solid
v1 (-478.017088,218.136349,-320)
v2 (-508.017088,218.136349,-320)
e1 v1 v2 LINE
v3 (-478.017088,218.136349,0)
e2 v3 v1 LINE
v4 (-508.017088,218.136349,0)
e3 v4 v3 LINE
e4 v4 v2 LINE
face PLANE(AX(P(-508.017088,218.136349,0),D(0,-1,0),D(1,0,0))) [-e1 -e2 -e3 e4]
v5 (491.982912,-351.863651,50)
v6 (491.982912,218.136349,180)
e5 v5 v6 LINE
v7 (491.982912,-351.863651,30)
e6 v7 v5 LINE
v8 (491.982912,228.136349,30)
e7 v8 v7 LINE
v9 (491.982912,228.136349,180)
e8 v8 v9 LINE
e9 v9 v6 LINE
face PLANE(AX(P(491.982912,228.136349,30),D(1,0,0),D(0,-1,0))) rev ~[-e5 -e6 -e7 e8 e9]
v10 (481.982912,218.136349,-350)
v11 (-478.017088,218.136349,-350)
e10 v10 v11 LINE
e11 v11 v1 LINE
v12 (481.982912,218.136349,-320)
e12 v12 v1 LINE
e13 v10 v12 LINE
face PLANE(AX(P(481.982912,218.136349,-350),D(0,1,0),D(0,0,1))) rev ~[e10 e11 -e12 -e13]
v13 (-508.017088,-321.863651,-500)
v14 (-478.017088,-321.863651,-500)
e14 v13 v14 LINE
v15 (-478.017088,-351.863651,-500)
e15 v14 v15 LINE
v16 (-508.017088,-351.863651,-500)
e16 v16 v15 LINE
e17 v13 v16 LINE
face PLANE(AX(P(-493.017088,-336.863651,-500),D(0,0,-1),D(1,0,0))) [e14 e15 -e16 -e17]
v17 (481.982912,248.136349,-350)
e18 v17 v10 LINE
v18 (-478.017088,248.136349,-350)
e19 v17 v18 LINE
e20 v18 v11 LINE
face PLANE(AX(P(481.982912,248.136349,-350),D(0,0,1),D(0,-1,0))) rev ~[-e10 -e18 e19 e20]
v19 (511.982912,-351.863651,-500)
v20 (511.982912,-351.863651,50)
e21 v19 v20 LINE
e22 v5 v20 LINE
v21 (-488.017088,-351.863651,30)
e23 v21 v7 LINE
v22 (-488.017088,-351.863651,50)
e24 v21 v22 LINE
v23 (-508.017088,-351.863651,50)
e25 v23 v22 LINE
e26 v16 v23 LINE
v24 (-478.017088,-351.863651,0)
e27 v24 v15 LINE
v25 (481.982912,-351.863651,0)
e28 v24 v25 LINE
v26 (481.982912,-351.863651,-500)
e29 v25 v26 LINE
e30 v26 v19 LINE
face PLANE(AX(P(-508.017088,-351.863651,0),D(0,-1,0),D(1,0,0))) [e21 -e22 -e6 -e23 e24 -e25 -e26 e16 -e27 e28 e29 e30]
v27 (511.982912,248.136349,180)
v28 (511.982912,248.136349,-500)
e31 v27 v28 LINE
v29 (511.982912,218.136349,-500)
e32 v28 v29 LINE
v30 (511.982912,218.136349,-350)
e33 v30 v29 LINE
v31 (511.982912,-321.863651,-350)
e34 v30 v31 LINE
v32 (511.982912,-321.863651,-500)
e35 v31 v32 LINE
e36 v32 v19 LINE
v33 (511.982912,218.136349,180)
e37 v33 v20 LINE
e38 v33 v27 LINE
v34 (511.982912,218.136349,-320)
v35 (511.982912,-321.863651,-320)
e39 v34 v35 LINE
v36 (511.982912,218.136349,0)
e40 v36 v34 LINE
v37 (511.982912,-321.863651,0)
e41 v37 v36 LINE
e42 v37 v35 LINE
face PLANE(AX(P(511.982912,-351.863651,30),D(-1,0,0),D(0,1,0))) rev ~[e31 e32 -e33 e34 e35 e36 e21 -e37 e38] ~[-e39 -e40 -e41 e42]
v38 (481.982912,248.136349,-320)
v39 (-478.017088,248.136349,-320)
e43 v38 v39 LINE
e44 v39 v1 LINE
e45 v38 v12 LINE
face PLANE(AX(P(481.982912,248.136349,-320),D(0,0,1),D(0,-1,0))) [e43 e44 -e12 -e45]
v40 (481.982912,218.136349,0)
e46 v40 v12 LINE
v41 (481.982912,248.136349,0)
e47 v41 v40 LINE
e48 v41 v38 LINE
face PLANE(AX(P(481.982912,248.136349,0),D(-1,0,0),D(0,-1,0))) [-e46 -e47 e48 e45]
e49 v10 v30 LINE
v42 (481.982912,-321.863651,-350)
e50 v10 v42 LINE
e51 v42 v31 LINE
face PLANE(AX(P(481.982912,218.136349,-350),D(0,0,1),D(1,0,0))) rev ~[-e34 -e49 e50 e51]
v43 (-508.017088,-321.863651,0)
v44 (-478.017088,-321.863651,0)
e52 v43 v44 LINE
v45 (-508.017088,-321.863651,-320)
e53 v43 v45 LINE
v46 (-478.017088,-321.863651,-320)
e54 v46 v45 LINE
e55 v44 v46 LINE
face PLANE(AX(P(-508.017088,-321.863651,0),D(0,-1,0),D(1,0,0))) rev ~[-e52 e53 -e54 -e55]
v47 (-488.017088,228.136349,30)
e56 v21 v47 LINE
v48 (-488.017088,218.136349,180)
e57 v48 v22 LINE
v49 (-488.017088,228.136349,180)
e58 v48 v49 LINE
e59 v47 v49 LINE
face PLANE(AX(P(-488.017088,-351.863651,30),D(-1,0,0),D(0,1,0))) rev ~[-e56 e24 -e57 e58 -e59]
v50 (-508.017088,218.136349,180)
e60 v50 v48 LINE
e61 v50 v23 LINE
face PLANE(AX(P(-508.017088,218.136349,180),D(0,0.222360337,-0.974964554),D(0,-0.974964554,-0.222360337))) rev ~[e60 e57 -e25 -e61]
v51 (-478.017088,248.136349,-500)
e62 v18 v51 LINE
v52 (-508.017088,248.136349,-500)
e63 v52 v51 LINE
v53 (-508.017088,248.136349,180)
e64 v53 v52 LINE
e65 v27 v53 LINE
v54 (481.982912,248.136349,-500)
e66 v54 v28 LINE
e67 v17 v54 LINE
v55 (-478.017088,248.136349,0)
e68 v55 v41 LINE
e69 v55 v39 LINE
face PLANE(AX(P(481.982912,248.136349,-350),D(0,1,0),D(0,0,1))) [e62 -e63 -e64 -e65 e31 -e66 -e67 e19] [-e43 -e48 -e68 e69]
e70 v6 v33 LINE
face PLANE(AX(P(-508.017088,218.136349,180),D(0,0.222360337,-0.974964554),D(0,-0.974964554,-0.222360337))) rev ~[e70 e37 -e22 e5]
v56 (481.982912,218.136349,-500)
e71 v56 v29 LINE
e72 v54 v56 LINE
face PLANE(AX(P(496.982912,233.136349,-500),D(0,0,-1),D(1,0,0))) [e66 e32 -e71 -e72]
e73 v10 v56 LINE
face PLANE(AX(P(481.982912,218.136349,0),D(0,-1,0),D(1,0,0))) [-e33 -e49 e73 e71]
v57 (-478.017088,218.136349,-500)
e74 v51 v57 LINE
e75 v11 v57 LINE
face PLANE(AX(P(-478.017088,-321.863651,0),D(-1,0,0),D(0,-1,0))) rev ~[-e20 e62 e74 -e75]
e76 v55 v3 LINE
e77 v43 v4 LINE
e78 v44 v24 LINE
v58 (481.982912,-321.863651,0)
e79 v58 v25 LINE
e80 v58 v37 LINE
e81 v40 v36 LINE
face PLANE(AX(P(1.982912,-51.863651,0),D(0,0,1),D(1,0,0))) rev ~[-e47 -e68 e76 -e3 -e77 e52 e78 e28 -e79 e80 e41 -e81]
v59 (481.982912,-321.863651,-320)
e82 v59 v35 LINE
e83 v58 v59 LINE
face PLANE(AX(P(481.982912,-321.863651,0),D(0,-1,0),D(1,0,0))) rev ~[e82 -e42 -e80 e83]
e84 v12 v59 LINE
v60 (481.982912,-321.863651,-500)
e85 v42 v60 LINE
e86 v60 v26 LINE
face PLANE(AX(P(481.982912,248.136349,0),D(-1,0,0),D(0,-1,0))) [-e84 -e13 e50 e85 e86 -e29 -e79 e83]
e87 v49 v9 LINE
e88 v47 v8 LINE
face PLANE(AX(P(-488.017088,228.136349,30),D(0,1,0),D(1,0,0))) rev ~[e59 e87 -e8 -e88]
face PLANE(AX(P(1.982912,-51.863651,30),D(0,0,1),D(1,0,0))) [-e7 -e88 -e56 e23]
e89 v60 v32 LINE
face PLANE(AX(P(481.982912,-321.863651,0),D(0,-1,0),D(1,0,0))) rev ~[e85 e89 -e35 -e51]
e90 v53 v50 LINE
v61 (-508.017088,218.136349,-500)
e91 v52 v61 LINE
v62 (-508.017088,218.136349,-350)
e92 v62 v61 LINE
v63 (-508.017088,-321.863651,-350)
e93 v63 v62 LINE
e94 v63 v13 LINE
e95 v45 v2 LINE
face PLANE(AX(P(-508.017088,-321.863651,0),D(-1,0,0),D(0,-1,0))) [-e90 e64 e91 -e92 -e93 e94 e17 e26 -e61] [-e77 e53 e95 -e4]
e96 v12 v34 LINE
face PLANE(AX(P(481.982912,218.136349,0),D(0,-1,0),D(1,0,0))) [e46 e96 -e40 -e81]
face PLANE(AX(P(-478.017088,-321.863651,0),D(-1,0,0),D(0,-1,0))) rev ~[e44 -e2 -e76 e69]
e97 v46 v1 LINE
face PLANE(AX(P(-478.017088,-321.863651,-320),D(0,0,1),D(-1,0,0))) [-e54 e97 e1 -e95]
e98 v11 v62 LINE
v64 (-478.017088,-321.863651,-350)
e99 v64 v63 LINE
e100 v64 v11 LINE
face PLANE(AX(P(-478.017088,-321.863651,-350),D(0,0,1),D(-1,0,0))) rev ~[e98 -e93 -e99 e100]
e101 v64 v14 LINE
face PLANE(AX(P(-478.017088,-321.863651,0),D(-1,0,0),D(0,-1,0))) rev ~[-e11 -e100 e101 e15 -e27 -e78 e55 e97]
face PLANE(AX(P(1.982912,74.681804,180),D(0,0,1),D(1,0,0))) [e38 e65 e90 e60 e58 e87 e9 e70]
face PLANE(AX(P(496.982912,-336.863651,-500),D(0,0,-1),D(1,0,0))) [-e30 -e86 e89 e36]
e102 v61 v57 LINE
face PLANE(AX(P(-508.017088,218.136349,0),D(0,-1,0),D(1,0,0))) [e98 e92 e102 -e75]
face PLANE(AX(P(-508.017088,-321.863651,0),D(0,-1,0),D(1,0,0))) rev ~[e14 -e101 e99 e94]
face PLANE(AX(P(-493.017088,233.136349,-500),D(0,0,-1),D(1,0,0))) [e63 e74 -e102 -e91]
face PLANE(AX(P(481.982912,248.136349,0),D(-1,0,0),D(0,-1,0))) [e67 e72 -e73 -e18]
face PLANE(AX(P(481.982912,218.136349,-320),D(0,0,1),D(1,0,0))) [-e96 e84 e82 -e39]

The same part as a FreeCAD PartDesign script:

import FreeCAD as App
import Part
import Sketcher
from FreeCAD import Vector


def add_polygon(sketch, points):
    """Adds a closed chain of lines whose ends are joined by coincident constraints."""
    first, n = sketch.GeometryCount, len(points)
    for a, b in zip(points, points[1:] + points[:1]):
        sketch.addGeometry(Part.LineSegment(App.Vector(*a, 0), App.Vector(*b, 0)), False)
    for i in range(n):
        sketch.addConstraint(Sketcher.Constraint("Coincident", first + i, 2, first + (i + 1) % n, 1))

doc = App.newDocument("Part")
body = doc.addObject("PartDesign::Body", "Body")

sketch1 = doc.addObject("Sketcher::SketchObject", "Sketch")
body.addObject(sketch1)
sketch1.AttachmentSupport = (doc.XY_Plane, [""])
sketch1.MapMode = "FlatFace"
add_polygon(sketch1, [(-508, 248), (-508, -352), (512, -352), (512, 248)])
sketch1.addConstraint(Sketcher.Constraint("Vertical", 0))
sketch1.addConstraint(Sketcher.Constraint("Horizontal", 1))
sketch1.addConstraint(Sketcher.Constraint("Vertical", 2))
sketch1.addConstraint(Sketcher.Constraint("Horizontal", 3))
sketch1.addConstraint(Sketcher.Constraint("DistanceX", 1, 1, 1, 2, 1020.0))
sketch1.addConstraint(Sketcher.Constraint("DistanceY", 0, 2, 0, 1, 600.0))
sketch1.addConstraint(Sketcher.Constraint("DistanceX", 0, 2, -1, 1, 508.017088))
sketch1.addConstraint(Sketcher.Constraint("DistanceY", 0, 2, -1, 1, 351.863651))
pad1 = doc.addObject("PartDesign::Pad", "Pad")
body.addObject(pad1)
pad1.Profile = sketch1
pad1.Length = 30

sketch2 = doc.addObject("Sketcher::SketchObject", "Sketch001")
body.addObject(sketch2)
sketch2.AttachmentSupport = (doc.XY_Plane, [""])
sketch2.MapMode = "FlatFace"
sketch2.AttachmentOffset = App.Placement(Vector(0, 0, 30), App.Rotation())
add_polygon(sketch2, [(-508, 248), (-508, -352), (-488, -352), (-488, 228), (492, 228), (492, -352), (512, -352), (512, 248)])
sketch2.addConstraint(Sketcher.Constraint("Vertical", 0))
sketch2.addConstraint(Sketcher.Constraint("Horizontal", 1))
sketch2.addConstraint(Sketcher.Constraint("Vertical", 2))
sketch2.addConstraint(Sketcher.Constraint("Horizontal", 3))
sketch2.addConstraint(Sketcher.Constraint("Vertical", 4))
sketch2.addConstraint(Sketcher.Constraint("Horizontal", 5))
sketch2.addConstraint(Sketcher.Constraint("Vertical", 6))
sketch2.addConstraint(Sketcher.Constraint("Horizontal", 7))
sketch2.addConstraint(Sketcher.Constraint("Horizontal", 1, 2, 4, 2))
sketch2.addConstraint(Sketcher.Constraint("Equal", 1, 5))
sketch2.addConstraint(Sketcher.Constraint("DistanceX", 1, 1, 1, 2, 20.0))
sketch2.addConstraint(Sketcher.Constraint("DistanceX", 3, 1, 3, 2, 980.0))
sketch2.addConstraint(Sketcher.Constraint("DistanceY", 0, 2, 0, 1, 600.0))
sketch2.addConstraint(Sketcher.Constraint("DistanceY", 2, 1, 2, 2, 580.0))
sketch2.addConstraint(Sketcher.Constraint("DistanceX", 0, 2, -1, 1, 508.017088))
sketch2.addConstraint(Sketcher.Constraint("DistanceY", 0, 2, -1, 1, 351.863651))
pad2 = doc.addObject("PartDesign::Pad", "Pad001")
body.addObject(pad2)
pad2.Profile = sketch2
pad2.Length = 150

sketch3 = doc.addObject("Sketcher::SketchObject", "Sketch002")
body.addObject(sketch3)
sketch3.AttachmentSupport = (doc.YZ_Plane, [""])
sketch3.MapMode = "FlatFace"
sketch3.AttachmentOffset = App.Placement(Vector(0, 0, -508.017088), App.Rotation())
add_polygon(sketch3, [(-352, 180), (218, 180), (-352, 50)])
sketch3.addConstraint(Sketcher.Constraint("Horizontal", 0))
sketch3.addConstraint(Sketcher.Constraint("Vertical", 2))
sketch3.addConstraint(Sketcher.Constraint("DistanceX", 0, 1, 0, 2, 570.0))
sketch3.addConstraint(Sketcher.Constraint("DistanceY", 2, 1, 2, 2, 130.0))
sketch3.addConstraint(Sketcher.Constraint("DistanceY", -1, 1, 0, 2, 180.0))
sketch3.addConstraint(Sketcher.Constraint("DistanceX", -1, 1, 0, 2, 218.136349))
pocket1 = doc.addObject("PartDesign::Pocket", "Pocket")
body.addObject(pocket1)
pocket1.Profile = sketch3
pocket1.Length = 2000
pocket1.Reversed = True

sketch4 = doc.addObject("Sketcher::SketchObject", "Sketch003")
body.addObject(sketch4)
sketch4.AttachmentSupport = (doc.XY_Plane, [""])
sketch4.MapMode = "FlatFace"
add_polygon(sketch4, [(-508, -352), (-508, -322), (-478, -322), (-478, -352)])
add_polygon(sketch4, [(-508, 218), (-508, 248), (-478, 248), (-478, 218)])
add_polygon(sketch4, [(482, -352), (482, -322), (512, -322), (512, -352)])
add_polygon(sketch4, [(482, 218), (482, 248), (512, 248), (512, 218)])
sketch4.addConstraint(Sketcher.Constraint("Vertical", 0))
sketch4.addConstraint(Sketcher.Constraint("Horizontal", 1))
sketch4.addConstraint(Sketcher.Constraint("Vertical", 2))
sketch4.addConstraint(Sketcher.Constraint("Horizontal", 3))
sketch4.addConstraint(Sketcher.Constraint("Vertical", 4))
sketch4.addConstraint(Sketcher.Constraint("Horizontal", 5))
sketch4.addConstraint(Sketcher.Constraint("Vertical", 6))
sketch4.addConstraint(Sketcher.Constraint("Horizontal", 7))
sketch4.addConstraint(Sketcher.Constraint("Vertical", 8))
sketch4.addConstraint(Sketcher.Constraint("Horizontal", 9))
sketch4.addConstraint(Sketcher.Constraint("Vertical", 10))
sketch4.addConstraint(Sketcher.Constraint("Horizontal", 11))
sketch4.addConstraint(Sketcher.Constraint("Vertical", 12))
sketch4.addConstraint(Sketcher.Constraint("Horizontal", 13))
sketch4.addConstraint(Sketcher.Constraint("Vertical", 14))
sketch4.addConstraint(Sketcher.Constraint("Horizontal", 15))
sketch4.addConstraint(Sketcher.Constraint("Horizontal", 1, 2, 8, 2))
sketch4.addConstraint(Sketcher.Constraint("Horizontal", 3, 2, 10, 2))
sketch4.addConstraint(Sketcher.Constraint("Horizontal", 5, 2, 12, 2))
sketch4.addConstraint(Sketcher.Constraint("Horizontal", 7, 2, 14, 2))
sketch4.addConstraint(Sketcher.Constraint("Vertical", 3, 2, 4, 2))
sketch4.addConstraint(Sketcher.Constraint("Vertical", 2, 2, 5, 2))
sketch4.addConstraint(Sketcher.Constraint("Vertical", 11, 2, 12, 2))
sketch4.addConstraint(Sketcher.Constraint("Vertical", 10, 2, 13, 2))
sketch4.addConstraint(Sketcher.Constraint("Equal", 7, 9))
sketch4.addConstraint(Sketcher.Constraint("Equal", 15, 0))
sketch4.addConstraint(Sketcher.Constraint("Equal", 2, 4))
sketch4.addConstraint(Sketcher.Constraint("DistanceX", 1, 1, 1, 2, 30.0))
sketch4.addConstraint(Sketcher.Constraint("DistanceY", 0, 2, 4, 2, 570.0))
sketch4.addConstraint(Sketcher.Constraint("DistanceX", 1, 2, 8, 2, 960.0))
sketch4.addConstraint(Sketcher.Constraint("DistanceX", 0, 2, -1, 1, 508.017088))
sketch4.addConstraint(Sketcher.Constraint("DistanceY", 0, 2, -1, 1, 321.863651))
pad3 = doc.addObject("PartDesign::Pad", "Pad002")
body.addObject(pad3)
pad3.Profile = sketch4
pad3.Length = 500
pad3.Reversed = True

sketch5 = doc.addObject("Sketcher::SketchObject", "Sketch004")
body.addObject(sketch5)
sketch5.AttachmentSupport = (doc.XZ_Plane, [""])
sketch5.MapMode = "FlatFace"
sketch5.AttachmentOffset = App.Placement(Vector(0, 0, 321.863651), App.Rotation())
add_polygon(sketch5, [(-478, -320), (-478, -350), (-508, -350), (-508, -320)])
sketch5.addConstraint(Sketcher.Constraint("Vertical", 0))
sketch5.addConstraint(Sketcher.Constraint("Horizontal", 1))
sketch5.addConstraint(Sketcher.Constraint("Vertical", 2))
sketch5.addConstraint(Sketcher.Constraint("Horizontal", 3))
sketch5.addConstraint(Sketcher.Constraint("Equal", 3, 0))
sketch5.addConstraint(Sketcher.Constraint("DistanceX", 1, 2, 1, 1, 30.0))
sketch5.addConstraint(Sketcher.Constraint("DistanceY", 0, 2, -1, 1, 350.0))
sketch5.addConstraint(Sketcher.Constraint("DistanceX", 0, 2, -1, 1, 478.017088))
pad4 = doc.addObject("PartDesign::Pad", "Pad003")
body.addObject(pad4)
pad4.Profile = sketch5
pad4.Type = "UpToLast"
pad4.Reversed = True

sketch6 = doc.addObject("Sketcher::SketchObject", "Sketch005")
body.addObject(sketch6)
sketch6.AttachmentSupport = (doc.XZ_Plane, [""])
sketch6.MapMode = "FlatFace"
sketch6.AttachmentOffset = App.Placement(Vector(0, 0, -218.136349), App.Rotation())
add_polygon(sketch6, [(482, -320), (482, -350), (512, -350), (512, -320)])
sketch6.addConstraint(Sketcher.Constraint("Vertical", 0))
sketch6.addConstraint(Sketcher.Constraint("Horizontal", 1))
sketch6.addConstraint(Sketcher.Constraint("Vertical", 2))
sketch6.addConstraint(Sketcher.Constraint("Horizontal", 3))
sketch6.addConstraint(Sketcher.Constraint("Equal", 3, 0))
sketch6.addConstraint(Sketcher.Constraint("DistanceX", 1, 1, 1, 2, 30.0))
sketch6.addConstraint(Sketcher.Constraint("DistanceY", 0, 2, -1, 1, 350.0))
sketch6.addConstraint(Sketcher.Constraint("DistanceX", -1, 1, 0, 2, 481.982912))
pad5 = doc.addObject("PartDesign::Pad", "Pad004")
body.addObject(pad5)
pad5.Profile = sketch6
pad5.Type = "UpToLast"

sketch7 = doc.addObject("Sketcher::SketchObject", "Sketch006")
body.addObject(sketch7)
sketch7.AttachmentSupport = (doc.YZ_Plane, [""])
sketch7.MapMode = "FlatFace"
sketch7.AttachmentOffset = App.Placement(Vector(0, 0, 481.982912), App.Rotation())
add_polygon(sketch7, [(248, -320), (248, -350), (218, -350), (218, -320)])
sketch7.addConstraint(Sketcher.Constraint("Vertical", 0))
sketch7.addConstraint(Sketcher.Constraint("Horizontal", 1))
sketch7.addConstraint(Sketcher.Constraint("Vertical", 2))
sketch7.addConstraint(Sketcher.Constraint("Horizontal", 3))
sketch7.addConstraint(Sketcher.Constraint("Equal", 3, 0))
sketch7.addConstraint(Sketcher.Constraint("DistanceX", 1, 2, 1, 1, 30.0))
sketch7.addConstraint(Sketcher.Constraint("DistanceY", 0, 2, -1, 1, 350.0))
sketch7.addConstraint(Sketcher.Constraint("DistanceX", -1, 1, 0, 2, 248.136349))
pad6 = doc.addObject("PartDesign::Pad", "Pad005")
body.addObject(pad6)
pad6.Profile = sketch7
pad6.Type = "UpToLast"
pad6.Reversed = True

doc.recompute()
